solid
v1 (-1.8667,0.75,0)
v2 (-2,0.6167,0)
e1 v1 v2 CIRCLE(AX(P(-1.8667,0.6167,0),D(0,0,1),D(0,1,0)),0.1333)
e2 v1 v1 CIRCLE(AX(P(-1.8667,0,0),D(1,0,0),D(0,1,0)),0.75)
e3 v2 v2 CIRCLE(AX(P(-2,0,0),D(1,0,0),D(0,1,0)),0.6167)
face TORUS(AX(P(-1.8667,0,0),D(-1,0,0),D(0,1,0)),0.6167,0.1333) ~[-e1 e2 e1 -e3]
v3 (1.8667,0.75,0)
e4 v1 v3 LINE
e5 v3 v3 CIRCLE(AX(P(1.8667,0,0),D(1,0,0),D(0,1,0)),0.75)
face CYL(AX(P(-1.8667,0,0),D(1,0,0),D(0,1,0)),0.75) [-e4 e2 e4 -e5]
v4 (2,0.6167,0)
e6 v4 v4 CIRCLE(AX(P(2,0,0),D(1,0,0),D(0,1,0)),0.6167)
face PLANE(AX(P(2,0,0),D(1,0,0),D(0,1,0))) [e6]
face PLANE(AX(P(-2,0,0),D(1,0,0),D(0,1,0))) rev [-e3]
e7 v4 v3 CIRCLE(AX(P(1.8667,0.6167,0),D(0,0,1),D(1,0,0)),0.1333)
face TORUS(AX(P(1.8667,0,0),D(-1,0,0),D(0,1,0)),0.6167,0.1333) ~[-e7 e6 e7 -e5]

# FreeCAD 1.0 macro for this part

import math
import FreeCAD as App
import Part
import Sketcher
from FreeCAD import Vector
Q = App.Units.Quantity

doc = App.newDocument("Part")
body = doc.addObject("PartDesign::Body", "Body")

sketch1 = body.newObject("Sketcher::SketchObject", "Sketch")
sketch1.AttachmentSupport = (doc.getObject("XY_Plane"), [""])
sketch1.MapMode = "FlatFace"
sketch1.addGeometry([
    Part.LineSegment(Vector(-2, 0, 0), Vector(2, 0, 0)),
    Part.LineSegment(Vector(2, 0, 0), Vector(2, 0.62, 0)),
    Part.ArcOfCircle(Part.Circle(Vector(1.87, 0.62, 0), Vector(0, 0, 1), 0.13), math.radians(0), math.radians(90)),
    Part.LineSegment(Vector(1.87, 0.75, 0), Vector(-1.87, 0.75, 0)),
    Part.ArcOfCircle(Part.Circle(Vector(-1.87, 0.62, 0), Vector(0, 0, 1), 0.13), math.radians(90), math.radians(180)),
    Part.LineSegment(Vector(-2, 0.62, 0), Vector(-2, 0, 0)),
], False)
sketch1.addConstraint([
    Sketcher.Constraint("Coincident", 0, 2, 1, 1),
    Sketcher.Constraint("Tangent", 1, 2, 2, 1),
    Sketcher.Constraint("Tangent", 2, 2, 3, 1),
    Sketcher.Constraint("Tangent", 3, 2, 4, 1),
    Sketcher.Constraint("Tangent", 4, 2, 5, 1),
    Sketcher.Constraint("Coincident", 5, 2, 0, 1),
    Sketcher.Constraint("Horizontal", 0),
    Sketcher.Constraint("Vertical", 1),
    Sketcher.Constraint("Horizontal", 3),
    Sketcher.Constraint("Vertical", 5),
    Sketcher.Constraint("Equal", 2, 4),
    Sketcher.Constraint("Symmetric", 0, 2, 5, 2, -1, 1),
    Sketcher.Constraint("DistanceX", 0, 1, 0, 2, Q("4 mm")),
    Sketcher.Constraint("Radius", 2, Q("0.1333 mm")),
    Sketcher.Constraint("DistanceY", -1, 1, 2, 2, Q("0.75 mm")),
])
revolution = body.newObject("PartDesign::Revolution", "Revolution")
revolution.Profile = sketch1
revolution.ReferenceAxis = (sketch1, ["H_Axis"])
revolution.Angle = 360

doc.recompute()
